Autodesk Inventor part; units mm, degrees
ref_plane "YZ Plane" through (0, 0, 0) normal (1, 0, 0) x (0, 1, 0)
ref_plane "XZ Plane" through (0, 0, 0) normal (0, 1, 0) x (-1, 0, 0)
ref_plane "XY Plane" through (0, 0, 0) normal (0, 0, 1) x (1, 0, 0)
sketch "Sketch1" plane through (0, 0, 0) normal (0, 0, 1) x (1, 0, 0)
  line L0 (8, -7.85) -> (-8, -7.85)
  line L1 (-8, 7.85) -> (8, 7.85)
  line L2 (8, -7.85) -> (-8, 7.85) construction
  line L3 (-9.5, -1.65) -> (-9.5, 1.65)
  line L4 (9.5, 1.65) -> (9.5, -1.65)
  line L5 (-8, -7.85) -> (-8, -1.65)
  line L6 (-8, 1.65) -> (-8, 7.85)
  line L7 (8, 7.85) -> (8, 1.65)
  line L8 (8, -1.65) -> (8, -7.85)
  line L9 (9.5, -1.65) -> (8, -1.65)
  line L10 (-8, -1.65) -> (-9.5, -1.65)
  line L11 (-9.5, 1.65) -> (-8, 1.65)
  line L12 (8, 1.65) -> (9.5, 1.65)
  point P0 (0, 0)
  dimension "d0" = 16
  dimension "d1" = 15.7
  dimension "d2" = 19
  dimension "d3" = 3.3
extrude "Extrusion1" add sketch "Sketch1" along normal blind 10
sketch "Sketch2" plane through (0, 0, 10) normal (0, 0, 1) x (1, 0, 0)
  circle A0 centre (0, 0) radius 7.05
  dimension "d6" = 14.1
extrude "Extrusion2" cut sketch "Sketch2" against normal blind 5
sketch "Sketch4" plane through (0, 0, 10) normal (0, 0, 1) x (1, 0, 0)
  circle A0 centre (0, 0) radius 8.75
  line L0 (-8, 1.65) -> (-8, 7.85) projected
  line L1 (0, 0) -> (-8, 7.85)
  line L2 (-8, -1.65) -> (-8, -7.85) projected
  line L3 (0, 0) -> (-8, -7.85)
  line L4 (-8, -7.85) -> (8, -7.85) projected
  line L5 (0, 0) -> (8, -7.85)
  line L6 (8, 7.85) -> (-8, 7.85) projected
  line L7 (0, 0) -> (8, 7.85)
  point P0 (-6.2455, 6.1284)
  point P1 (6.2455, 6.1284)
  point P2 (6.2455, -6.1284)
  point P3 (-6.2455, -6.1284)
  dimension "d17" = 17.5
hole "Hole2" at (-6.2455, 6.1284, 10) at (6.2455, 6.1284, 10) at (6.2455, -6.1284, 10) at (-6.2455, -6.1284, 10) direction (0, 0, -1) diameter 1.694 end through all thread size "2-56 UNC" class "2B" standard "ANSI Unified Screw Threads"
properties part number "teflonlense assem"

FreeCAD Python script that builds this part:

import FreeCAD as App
import Part
import Sketcher
from FreeCAD import Vector


def add_polygon(sketch, points):
    """Adds a closed chain of lines whose ends are joined by coincident constraints."""
    first, n = sketch.GeometryCount, len(points)
    for a, b in zip(points, points[1:] + points[:1]):
        sketch.addGeometry(Part.LineSegment(App.Vector(*a, 0), App.Vector(*b, 0)), False)
    for i in range(n):
        sketch.addConstraint(Sketcher.Constraint("Coincident", first + i, 2, first + (i + 1) % n, 1))

doc = App.newDocument("Part")
body = doc.addObject("PartDesign::Body", "Body")

sketch1 = body.newObject("Sketcher::SketchObject", "Sketch")
sketch1.AttachmentSupport = (doc.getObject("XY_Plane"), [""])
sketch1.MapMode = "FlatFace"
add_polygon(sketch1, [(-8, -7.8), (8, -7.8), (8, -1.6), (9.5, -1.6), (9.5, 1.6), (8, 1.6), (8, 7.8), (-8, 7.8), (-8, 1.6), (-9.5, 1.6), (-9.5, -1.6), (-8, -1.6)])
sketch1.addConstraint([
    Sketcher.Constraint("Horizontal", 0),
    Sketcher.Constraint("Vertical", 1),
    Sketcher.Constraint("Horizontal", 2),
    Sketcher.Constraint("Vertical", 3),
    Sketcher.Constraint("Horizontal", 4),
    Sketcher.Constraint("Vertical", 5),
    Sketcher.Constraint("Horizontal", 6),
    Sketcher.Constraint("Vertical", 7),
    Sketcher.Constraint("Horizontal", 8),
    Sketcher.Constraint("Vertical", 9),
    Sketcher.Constraint("Horizontal", 10),
    Sketcher.Constraint("Vertical", 11),
    Sketcher.Constraint("Symmetric", 0, 2, 6, 2, -1, 1),
    Sketcher.Constraint("Symmetric", 2, 2, 8, 2, -1, 1),
    Sketcher.Constraint("Symmetric", 4, 2, 10, 2, -1, 1),
    Sketcher.Constraint("Symmetric", 4, 2, 7, 2, -2),
    Sketcher.Constraint("DistanceX", 0, 1, 0, 2, 16.0),
    Sketcher.Constraint("DistanceY", 3, 1, 3, 2, 3.3),
    Sketcher.Constraint("DistanceY", 0, 2, 5, 2, 15.7),
    Sketcher.Constraint("DistanceX", 2, 1, 2, 2, 1.5),
])
pad1 = body.newObject("PartDesign::Pad", "Pad")
pad1.Profile = sketch1
pad1.Length = 10

sketch2 = body.newObject("Sketcher::SketchObject", "Sketch001")
sketch2.AttachmentSupport = (doc.getObject("XY_Plane"), [""])
sketch2.MapMode = "FlatFace"
sketch2.AttachmentOffset = App.Placement(Vector(0, 0, 10), App.Rotation())
sketch2.addGeometry(Part.Circle(Vector(0, 0, 0), Vector(0, 0, 1), 7), False)
sketch2.addConstraint([
    Sketcher.Constraint("Coincident", 0, 3, -1, 1),
    Sketcher.Constraint("Diameter", 0, 14.1),
])
pocket1 = body.newObject("PartDesign::Pocket", "Pocket")
pocket1.Profile = sketch2
pocket1.Length = 5

sketch3 = body.newObject("Sketcher::SketchObject", "Sketch002")
sketch3.AttachmentSupport = (doc.getObject("XY_Plane"), [""])
sketch3.MapMode = "FlatFace"
sketch3.AttachmentOffset = App.Placement(Vector(0, 0, 10), App.Rotation())
sketch3.addGeometry([
    Part.Circle(Vector(-6.2, 6.1, 0), Vector(0, 0, 1), 0.8),
    Part.Circle(Vector(6.2, 6.1, 0), Vector(0, 0, 1), 0.8),
    Part.Circle(Vector(6.2, -6.1, 0), Vector(0, 0, 1), 0.8),
    Part.Circle(Vector(-6.2, -6.1, 0), Vector(0, 0, 1), 0.8),
], False)
sketch3.addConstraint([
    Sketcher.Constraint("Equal", 0, 1),
    Sketcher.Constraint("Equal", 1, 2),
    Sketcher.Constraint("Equal", 2, 3),
    Sketcher.Constraint("Symmetric", 0, 3, 2, 3, -1, 1),
    Sketcher.Constraint("Symmetric", 1, 3, 3, 3, -1, 1),
    Sketcher.Constraint("Symmetric", 0, 3, 1, 3, -2),
    Sketcher.Constraint("Diameter", 0, 1.694),
    Sketcher.Constraint("DistanceX", 0, 3, 1, 3, 12.491),
    Sketcher.Constraint("DistanceY", -1, 1, 0, 3, 6.1284),
])
doc.recompute()
hole = body.newObject("PartDesign::Hole", "Hole")
hole.Profile = sketch3
hole.ThreadType = "None"
hole.Diameter = 1.694
hole.DepthType = "ThroughAll"

doc.recompute()
